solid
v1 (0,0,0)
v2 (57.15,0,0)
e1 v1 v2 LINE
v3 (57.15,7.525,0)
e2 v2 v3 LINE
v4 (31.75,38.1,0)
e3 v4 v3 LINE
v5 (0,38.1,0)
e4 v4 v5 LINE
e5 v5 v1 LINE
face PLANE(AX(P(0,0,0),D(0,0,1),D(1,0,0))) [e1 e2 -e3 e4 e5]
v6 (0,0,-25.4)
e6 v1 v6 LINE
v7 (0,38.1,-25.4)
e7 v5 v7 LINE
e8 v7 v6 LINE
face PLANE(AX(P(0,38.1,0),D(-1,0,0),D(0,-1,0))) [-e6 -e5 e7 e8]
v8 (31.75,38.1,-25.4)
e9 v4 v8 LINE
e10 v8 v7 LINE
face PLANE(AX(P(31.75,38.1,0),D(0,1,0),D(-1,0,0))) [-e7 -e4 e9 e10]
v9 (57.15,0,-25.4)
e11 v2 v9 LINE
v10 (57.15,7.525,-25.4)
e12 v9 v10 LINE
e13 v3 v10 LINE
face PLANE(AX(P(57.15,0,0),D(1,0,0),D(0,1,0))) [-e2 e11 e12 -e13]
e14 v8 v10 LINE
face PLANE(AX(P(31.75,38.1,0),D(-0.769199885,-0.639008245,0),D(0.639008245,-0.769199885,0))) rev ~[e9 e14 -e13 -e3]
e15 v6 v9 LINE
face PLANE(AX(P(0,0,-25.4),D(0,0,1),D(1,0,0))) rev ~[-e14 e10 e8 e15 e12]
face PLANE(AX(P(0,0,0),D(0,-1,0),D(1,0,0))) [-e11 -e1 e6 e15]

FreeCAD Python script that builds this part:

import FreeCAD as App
import Part
import Sketcher

V = App.Vector
Q = App.Units.Quantity


def add_polygon(sketch, points):
    """Adds a closed chain of lines whose ends are joined by coincident constraints."""
    first, n = sketch.GeometryCount, len(points)
    for a, b in zip(points, points[1:] + points[:1]):
        sketch.addGeometry(Part.LineSegment(App.Vector(*a, 0), App.Vector(*b, 0)), False)
    for i in range(n):
        sketch.addConstraint(Sketcher.Constraint("Coincident", first + i, 2, first + (i + 1) % n, 1))

doc = App.newDocument("Part")
body = doc.addObject("PartDesign::Body", "Body")

sketch1 = doc.addObject("Sketcher::SketchObject", "Sketch")
body.addObject(sketch1)
sketch1.AttachmentSupport = (doc.XY_Plane, [""])
sketch1.MapMode = "FlatFace"
add_polygon(sketch1, [(0, 38), (0, 0), (57, 0), (57, 8), (32, 38)])
sketch1.addConstraint([
    Sketcher.Constraint("Vertical", 0),
    Sketcher.Constraint("Horizontal", 1),
    Sketcher.Constraint("Vertical", 2),
    Sketcher.Constraint("Horizontal", 4),
    Sketcher.Constraint("Coincident", 0, 2, -1, 1),
    Sketcher.Constraint("DistanceY", 0, 2, 0, 1, Q("1.5 in")),
    Sketcher.Constraint("DistanceX", 3, 2, 2, 2, Q("1 in")),
    Sketcher.Constraint("DistanceX", 1, 1, 1, 2, Q("2.25 in")),
    Sketcher.Constraint("DistanceY", 2, 2, 3, 2, 30.575),
])
pad1 = doc.addObject("PartDesign::Pad", "Pad")
body.addObject(pad1)
pad1.Profile = sketch1
pad1.Length = Q("1 in")
pad1.Reversed = True

doc.recompute()
